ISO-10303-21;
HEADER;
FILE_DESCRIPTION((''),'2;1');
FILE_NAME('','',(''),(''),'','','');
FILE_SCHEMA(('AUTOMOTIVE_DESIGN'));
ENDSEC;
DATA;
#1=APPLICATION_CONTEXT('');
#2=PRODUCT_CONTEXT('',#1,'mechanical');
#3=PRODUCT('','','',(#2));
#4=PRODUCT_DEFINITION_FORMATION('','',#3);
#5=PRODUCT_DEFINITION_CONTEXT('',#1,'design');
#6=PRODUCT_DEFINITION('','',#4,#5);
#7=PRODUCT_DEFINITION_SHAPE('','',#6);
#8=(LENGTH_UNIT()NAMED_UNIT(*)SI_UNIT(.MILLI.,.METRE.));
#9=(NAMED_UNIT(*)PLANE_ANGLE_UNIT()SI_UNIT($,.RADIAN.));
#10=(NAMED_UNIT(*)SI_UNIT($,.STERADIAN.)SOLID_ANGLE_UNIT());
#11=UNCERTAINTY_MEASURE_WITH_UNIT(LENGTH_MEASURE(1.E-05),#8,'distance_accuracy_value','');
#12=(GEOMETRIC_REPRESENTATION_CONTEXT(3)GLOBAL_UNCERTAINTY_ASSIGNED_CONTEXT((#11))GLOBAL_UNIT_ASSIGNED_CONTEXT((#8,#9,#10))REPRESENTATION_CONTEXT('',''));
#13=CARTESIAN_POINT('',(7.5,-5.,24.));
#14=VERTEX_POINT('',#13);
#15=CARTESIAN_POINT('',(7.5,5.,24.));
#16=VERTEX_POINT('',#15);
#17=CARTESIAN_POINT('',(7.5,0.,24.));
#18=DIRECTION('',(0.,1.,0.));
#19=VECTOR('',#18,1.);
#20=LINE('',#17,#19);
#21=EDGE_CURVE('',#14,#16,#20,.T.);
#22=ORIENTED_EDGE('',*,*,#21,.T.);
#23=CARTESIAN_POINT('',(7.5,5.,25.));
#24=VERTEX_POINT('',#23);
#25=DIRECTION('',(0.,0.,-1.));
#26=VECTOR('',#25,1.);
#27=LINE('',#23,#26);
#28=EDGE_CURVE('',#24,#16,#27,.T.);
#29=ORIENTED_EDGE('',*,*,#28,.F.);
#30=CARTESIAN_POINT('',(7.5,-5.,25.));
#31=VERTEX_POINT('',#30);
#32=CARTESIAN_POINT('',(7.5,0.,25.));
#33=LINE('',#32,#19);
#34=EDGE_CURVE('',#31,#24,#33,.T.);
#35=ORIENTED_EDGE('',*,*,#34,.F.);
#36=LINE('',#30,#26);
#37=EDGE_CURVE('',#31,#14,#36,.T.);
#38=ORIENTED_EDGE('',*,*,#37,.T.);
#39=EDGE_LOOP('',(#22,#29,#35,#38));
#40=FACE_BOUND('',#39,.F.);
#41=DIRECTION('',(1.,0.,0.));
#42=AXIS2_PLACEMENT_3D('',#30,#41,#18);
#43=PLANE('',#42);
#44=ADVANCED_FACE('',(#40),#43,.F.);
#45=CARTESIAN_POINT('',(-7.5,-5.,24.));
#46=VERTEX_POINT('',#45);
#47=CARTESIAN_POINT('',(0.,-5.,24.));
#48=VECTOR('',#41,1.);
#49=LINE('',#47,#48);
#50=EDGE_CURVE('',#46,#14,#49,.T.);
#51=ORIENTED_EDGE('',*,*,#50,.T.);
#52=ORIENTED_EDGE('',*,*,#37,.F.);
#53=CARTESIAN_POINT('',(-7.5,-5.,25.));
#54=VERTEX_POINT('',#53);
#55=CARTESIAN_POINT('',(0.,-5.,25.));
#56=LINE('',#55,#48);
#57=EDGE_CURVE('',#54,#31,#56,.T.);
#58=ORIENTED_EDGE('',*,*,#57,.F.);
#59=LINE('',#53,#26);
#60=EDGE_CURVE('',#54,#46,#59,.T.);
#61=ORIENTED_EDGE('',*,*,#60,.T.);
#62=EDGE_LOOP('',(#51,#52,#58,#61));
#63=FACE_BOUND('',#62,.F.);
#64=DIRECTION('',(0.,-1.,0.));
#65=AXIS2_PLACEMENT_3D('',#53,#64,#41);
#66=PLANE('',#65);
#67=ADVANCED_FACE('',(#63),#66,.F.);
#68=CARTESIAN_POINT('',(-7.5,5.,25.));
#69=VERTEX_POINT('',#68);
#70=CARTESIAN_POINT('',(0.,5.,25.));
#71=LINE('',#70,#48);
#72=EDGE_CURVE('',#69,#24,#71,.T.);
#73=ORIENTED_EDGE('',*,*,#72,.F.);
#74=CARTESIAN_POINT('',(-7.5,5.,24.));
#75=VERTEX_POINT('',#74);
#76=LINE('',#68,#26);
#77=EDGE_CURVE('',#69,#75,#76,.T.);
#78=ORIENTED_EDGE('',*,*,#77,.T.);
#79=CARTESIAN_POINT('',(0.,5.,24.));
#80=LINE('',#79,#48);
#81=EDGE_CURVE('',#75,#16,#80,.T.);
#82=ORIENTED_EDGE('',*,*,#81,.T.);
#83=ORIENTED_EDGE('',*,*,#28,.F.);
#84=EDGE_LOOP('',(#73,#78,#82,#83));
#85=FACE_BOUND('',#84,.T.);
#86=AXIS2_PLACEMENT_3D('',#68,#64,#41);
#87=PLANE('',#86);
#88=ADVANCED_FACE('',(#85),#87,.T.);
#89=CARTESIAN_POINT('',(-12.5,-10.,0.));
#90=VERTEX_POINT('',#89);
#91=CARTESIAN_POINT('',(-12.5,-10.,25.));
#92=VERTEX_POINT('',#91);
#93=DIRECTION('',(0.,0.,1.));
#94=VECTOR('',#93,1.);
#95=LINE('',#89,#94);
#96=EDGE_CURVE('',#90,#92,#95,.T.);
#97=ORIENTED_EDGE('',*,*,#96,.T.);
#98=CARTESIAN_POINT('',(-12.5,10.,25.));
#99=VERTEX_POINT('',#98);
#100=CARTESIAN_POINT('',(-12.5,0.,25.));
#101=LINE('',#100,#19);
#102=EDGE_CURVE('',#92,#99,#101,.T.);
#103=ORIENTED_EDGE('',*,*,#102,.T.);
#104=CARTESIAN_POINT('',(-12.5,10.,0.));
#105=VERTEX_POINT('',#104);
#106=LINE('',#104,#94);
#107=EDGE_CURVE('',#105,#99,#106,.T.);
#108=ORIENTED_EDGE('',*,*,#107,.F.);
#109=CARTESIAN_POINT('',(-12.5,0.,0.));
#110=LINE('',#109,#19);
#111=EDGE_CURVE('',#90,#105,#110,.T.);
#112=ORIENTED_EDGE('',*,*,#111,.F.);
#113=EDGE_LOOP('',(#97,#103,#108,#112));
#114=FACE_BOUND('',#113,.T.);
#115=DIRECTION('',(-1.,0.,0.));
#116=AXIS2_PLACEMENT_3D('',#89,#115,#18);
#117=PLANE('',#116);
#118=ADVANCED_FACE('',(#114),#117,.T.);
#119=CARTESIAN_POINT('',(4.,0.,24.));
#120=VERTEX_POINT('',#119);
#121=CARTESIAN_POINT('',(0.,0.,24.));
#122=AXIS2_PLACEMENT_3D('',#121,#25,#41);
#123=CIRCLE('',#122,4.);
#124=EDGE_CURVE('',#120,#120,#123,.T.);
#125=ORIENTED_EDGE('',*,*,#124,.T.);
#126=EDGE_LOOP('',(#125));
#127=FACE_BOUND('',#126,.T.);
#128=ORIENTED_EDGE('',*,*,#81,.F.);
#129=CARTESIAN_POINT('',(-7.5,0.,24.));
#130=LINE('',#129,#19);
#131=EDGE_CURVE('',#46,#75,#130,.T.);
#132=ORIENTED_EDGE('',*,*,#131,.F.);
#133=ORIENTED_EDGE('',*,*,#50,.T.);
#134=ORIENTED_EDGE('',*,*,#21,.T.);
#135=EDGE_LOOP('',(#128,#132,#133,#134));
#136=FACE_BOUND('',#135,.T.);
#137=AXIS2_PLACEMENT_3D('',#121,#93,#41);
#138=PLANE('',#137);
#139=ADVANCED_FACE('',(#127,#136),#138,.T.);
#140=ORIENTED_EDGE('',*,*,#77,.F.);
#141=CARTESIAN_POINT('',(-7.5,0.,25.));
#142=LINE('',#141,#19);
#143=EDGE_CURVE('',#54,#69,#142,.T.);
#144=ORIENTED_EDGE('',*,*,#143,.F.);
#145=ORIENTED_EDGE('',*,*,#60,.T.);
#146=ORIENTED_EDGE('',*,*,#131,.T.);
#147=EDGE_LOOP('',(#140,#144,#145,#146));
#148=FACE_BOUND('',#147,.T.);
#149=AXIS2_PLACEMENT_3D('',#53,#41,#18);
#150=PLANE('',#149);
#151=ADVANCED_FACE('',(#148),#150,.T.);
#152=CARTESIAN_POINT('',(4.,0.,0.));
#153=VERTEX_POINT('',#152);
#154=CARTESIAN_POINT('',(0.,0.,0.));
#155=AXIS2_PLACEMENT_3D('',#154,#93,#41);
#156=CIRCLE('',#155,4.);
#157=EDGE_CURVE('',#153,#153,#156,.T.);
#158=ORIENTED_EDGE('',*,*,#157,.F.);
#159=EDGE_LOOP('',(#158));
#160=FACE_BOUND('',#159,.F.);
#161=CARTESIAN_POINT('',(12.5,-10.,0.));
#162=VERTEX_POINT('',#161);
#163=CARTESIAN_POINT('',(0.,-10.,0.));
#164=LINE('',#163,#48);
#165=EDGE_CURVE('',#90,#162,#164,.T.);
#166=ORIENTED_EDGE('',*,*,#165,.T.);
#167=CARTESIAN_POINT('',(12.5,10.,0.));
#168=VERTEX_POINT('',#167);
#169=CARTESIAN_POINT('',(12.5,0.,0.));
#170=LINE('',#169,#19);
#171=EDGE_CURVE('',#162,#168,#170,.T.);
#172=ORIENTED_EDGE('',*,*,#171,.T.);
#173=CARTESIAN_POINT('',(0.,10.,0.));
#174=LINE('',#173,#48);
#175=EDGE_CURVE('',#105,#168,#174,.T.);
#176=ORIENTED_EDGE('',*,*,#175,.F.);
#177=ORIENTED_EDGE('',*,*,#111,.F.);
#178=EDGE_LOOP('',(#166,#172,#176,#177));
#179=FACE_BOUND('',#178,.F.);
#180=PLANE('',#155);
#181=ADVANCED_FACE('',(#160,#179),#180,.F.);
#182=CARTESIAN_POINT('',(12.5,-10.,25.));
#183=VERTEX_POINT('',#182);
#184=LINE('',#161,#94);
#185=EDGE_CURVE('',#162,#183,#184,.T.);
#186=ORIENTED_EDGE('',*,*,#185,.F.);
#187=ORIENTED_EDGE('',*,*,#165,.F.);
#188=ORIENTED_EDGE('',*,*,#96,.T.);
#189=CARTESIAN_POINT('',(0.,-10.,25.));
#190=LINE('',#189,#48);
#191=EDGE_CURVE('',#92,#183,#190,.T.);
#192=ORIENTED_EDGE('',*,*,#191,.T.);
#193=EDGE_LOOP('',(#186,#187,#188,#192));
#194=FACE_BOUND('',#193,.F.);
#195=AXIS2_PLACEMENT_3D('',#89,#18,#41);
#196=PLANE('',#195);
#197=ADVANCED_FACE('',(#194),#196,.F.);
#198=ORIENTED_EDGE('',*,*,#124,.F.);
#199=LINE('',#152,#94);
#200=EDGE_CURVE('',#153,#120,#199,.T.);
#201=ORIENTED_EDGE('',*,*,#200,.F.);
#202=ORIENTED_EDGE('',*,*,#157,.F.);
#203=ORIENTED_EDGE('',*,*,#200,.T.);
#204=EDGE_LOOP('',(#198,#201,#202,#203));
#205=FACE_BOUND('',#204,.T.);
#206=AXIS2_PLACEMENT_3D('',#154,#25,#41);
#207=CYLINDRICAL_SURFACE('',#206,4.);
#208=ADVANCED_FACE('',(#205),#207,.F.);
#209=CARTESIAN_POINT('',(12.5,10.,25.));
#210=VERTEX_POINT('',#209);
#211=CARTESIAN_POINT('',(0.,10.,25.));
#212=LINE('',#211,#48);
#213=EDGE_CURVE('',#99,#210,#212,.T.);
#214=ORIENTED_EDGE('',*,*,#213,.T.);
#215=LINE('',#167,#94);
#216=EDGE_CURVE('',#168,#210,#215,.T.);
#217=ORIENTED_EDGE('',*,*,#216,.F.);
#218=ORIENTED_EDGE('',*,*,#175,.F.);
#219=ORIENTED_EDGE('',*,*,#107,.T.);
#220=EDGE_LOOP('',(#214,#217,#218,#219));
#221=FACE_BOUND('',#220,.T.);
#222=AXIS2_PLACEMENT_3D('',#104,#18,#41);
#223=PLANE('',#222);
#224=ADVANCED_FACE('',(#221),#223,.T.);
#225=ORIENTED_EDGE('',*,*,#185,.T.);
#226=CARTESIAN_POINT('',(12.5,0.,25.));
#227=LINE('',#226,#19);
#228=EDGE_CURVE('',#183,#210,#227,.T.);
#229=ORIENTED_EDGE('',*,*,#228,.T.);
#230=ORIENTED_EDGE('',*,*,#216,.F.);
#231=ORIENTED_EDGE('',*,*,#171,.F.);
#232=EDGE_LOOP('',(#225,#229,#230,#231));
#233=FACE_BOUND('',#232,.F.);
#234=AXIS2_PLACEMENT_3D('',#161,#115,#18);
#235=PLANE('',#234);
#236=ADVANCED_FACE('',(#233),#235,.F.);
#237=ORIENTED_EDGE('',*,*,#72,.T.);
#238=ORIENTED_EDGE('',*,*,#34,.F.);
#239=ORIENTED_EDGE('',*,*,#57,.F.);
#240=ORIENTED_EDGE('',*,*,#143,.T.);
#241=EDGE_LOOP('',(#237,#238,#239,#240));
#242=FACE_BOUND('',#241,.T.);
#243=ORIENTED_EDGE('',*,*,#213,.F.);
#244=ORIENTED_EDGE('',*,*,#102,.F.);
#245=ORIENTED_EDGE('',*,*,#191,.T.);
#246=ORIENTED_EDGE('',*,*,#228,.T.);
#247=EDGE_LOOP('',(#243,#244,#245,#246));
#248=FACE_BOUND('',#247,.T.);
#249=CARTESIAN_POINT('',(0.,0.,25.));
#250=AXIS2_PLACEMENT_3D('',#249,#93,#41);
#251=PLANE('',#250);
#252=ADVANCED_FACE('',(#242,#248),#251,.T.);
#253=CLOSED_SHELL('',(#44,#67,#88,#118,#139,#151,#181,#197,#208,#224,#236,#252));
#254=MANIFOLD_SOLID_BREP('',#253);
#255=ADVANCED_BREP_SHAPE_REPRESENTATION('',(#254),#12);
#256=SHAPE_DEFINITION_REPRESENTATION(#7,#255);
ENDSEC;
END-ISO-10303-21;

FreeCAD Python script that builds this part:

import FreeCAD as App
import Part
import Sketcher


def add_polygon(sketch, points):
    """Adds a closed chain of lines whose ends are joined by coincident constraints."""
    first, n = sketch.GeometryCount, len(points)
    for a, b in zip(points, points[1:] + points[:1]):
        sketch.addGeometry(Part.LineSegment(App.Vector(*a, 0), App.Vector(*b, 0)), False)
    for i in range(n):
        sketch.addConstraint(Sketcher.Constraint("Coincident", first + i, 2, first + (i + 1) % n, 1))

doc = App.newDocument("Part")
body = doc.addObject("PartDesign::Body", "Body")

# Sketch on XY plane
sketch1 = doc.addObject("Sketcher::SketchObject", "Sketch")
body.addObject(sketch1)
sketch1.AttachmentSupport = (doc.XY_Plane, [""])
sketch1.MapMode = "FlatFace"
add_polygon(sketch1, [(-12.5, 10), (-12.5, -10), (12.5, -10), (12.5, 10)])  # lines 0-3
sketch1.addGeometry(Part.Circle(App.Vector(0, 0, 0), App.Vector(0, 0, 1), 4), False)  # 4
sketch1.addConstraint([
    Sketcher.Constraint("Vertical", 0),
    Sketcher.Constraint("Horizontal", 1),
    Sketcher.Constraint("Vertical", 2),
    Sketcher.Constraint("Horizontal", 3),
    Sketcher.Constraint("Coincident", 4, 3, -1, 1),
    Sketcher.Constraint("Symmetric", 0, 2, 2, 2, -1, 1),
    Sketcher.Constraint("Diameter", 4, 8.0),
    Sketcher.Constraint("DistanceX", 1, 1, 1, 2, 25.0),
    Sketcher.Constraint("DistanceY", 0, 2, 0, 1, 20.0),
])
pad1 = doc.addObject("PartDesign::Pad", "Pad")
body.addObject(pad1)
pad1.Profile = sketch1
pad1.Length = 25

# Sketch on XY plane
sketch2 = doc.addObject("Sketcher::SketchObject", "Sketch001")
body.addObject(sketch2)
sketch2.AttachmentSupport = (doc.XY_Plane, [""])
sketch2.MapMode = "FlatFace"
sketch2.AttachmentOffset = App.Placement(App.Vector(0, 0, 25), App.Rotation())
add_polygon(sketch2, [(-8, 5), (-8, -5), (8, -5), (8, 5)])  # lines 0-3
sketch2.addConstraint([
    Sketcher.Constraint("Vertical", 0),
    Sketcher.Constraint("Horizontal", 1),
    Sketcher.Constraint("Vertical", 2),
    Sketcher.Constraint("Horizontal", 3),
    Sketcher.Constraint("Symmetric", 0, 2, 2, 2, -1, 1),
    Sketcher.Constraint("DistanceX", 1, 1, 1, 2, 15.0),
    Sketcher.Constraint("DistanceY", 0, 2, 0, 1, 10.0),
])
pocket1 = doc.addObject("PartDesign::Pocket", "Pocket")
body.addObject(pocket1)
pocket1.Profile = sketch2
pocket1.Length = 1

doc.recompute()
